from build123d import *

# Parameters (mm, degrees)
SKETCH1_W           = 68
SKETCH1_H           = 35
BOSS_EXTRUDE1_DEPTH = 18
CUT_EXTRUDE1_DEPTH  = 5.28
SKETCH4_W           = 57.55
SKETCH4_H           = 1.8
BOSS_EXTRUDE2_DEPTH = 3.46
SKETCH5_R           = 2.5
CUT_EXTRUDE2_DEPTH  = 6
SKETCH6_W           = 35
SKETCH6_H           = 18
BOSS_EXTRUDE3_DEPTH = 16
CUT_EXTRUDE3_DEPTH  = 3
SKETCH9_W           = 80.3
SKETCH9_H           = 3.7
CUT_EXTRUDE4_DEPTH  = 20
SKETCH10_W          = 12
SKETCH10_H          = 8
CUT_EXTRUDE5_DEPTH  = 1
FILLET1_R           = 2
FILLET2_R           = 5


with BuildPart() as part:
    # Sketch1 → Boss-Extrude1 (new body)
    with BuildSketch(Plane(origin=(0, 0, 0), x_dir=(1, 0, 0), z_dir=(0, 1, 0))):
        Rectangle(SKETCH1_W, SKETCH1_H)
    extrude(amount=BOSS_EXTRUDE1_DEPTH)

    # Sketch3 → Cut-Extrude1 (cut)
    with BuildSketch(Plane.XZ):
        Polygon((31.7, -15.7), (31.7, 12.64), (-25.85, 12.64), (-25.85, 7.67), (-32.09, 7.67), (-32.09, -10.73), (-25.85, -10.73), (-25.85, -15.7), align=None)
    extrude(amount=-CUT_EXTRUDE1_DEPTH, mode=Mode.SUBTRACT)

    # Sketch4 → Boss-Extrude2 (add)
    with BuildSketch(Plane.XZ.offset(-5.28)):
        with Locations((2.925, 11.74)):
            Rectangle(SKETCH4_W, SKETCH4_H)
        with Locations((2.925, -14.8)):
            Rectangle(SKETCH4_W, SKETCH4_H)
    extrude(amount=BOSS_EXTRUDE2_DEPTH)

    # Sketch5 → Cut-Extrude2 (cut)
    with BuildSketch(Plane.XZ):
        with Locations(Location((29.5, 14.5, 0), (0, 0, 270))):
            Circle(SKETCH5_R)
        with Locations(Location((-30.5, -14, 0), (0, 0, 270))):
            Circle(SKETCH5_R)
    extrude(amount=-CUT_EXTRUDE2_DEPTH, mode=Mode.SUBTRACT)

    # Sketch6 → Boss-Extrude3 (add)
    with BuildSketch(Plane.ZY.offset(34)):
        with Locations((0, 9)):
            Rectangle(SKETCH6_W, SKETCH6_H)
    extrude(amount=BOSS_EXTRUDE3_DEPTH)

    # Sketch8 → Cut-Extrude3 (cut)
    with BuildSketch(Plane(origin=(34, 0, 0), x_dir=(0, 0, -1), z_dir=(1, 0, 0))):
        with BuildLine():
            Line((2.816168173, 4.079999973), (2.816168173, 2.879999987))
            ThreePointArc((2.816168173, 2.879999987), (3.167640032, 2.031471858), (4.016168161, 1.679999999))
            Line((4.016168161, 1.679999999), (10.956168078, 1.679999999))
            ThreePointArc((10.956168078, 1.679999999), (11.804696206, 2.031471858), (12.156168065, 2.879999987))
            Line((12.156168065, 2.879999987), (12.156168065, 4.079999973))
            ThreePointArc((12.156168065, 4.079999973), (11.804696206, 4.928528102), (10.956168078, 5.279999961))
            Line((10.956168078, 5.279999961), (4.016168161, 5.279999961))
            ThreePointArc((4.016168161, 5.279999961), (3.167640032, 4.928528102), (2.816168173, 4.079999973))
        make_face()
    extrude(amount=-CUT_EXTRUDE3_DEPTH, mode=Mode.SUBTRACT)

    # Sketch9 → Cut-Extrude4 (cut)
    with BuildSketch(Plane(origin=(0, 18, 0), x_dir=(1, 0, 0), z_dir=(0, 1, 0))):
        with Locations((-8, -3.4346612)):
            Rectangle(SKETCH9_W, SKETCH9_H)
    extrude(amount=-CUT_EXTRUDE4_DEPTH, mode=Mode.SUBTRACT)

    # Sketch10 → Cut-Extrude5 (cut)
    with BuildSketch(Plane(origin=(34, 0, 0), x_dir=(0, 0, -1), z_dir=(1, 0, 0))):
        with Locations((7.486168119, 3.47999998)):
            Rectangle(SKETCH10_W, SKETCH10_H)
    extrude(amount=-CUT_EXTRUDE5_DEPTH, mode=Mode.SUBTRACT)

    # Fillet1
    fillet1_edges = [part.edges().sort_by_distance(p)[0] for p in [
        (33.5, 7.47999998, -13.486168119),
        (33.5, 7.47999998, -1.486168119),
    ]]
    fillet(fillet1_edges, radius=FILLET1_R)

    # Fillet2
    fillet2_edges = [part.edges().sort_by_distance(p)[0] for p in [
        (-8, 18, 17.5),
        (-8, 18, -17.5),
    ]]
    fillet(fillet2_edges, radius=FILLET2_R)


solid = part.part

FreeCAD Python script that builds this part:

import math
import FreeCAD as App
import Part
import Sketcher
from FreeCAD import Vector


def edges_at(feature, points):
    """Names of the edges that pass closest to the given points."""
    edges = feature.Shape.Edges
    near = lambda p: min(range(len(edges)), key=lambda i: edges[i].distToShape(Part.Vertex(*p))[0])
    return sorted({f"Edge{near(p) + 1}" for p in points})


def add_polygon(sketch, points):
    """Adds a closed chain of lines whose ends are joined by coincident constraints."""
    first, n = sketch.GeometryCount, len(points)
    for a, b in zip(points, points[1:] + points[:1]):
        sketch.addGeometry(Part.LineSegment(App.Vector(*a, 0), App.Vector(*b, 0)), False)
    for i in range(n):
        sketch.addConstraint(Sketcher.Constraint("Coincident", first + i, 2, first + (i + 1) % n, 1))

doc = App.newDocument("Part")
body = doc.addObject("PartDesign::Body", "Body")

# Sketch on XZ plane
sketch1 = doc.addObject("Sketcher::SketchObject", "Sketch")
body.addObject(sketch1)
sketch1.AttachmentSupport = (doc.XZ_Plane, [""])
sketch1.MapMode = "FlatFace"
add_polygon(sketch1, [(-34, -18), (-34, 18), (34, 18), (34, -18)])  # lines 0-3
sketch1.addConstraint(Sketcher.Constraint("Vertical", 0))
sketch1.addConstraint(Sketcher.Constraint("Horizontal", 1))
sketch1.addConstraint(Sketcher.Constraint("Vertical", 2))
sketch1.addConstraint(Sketcher.Constraint("Horizontal", 3))
sketch1.addConstraint(Sketcher.Constraint("Symmetric", 0, 2, 2, 2, -1, 1))
sketch1.addConstraint(Sketcher.Constraint("DistanceX", 1, 1, 1, 2, 68.0))
sketch1.addConstraint(Sketcher.Constraint("DistanceY", 0, 1, 0, 2, 35.0))
pad1 = doc.addObject("PartDesign::Pad", "Pad")
body.addObject(pad1)
pad1.Profile = sketch1
pad1.Length = 18
pad1.Reversed = True

# Sketch on XZ plane
sketch2 = doc.addObject("Sketcher::SketchObject", "Sketch001")
body.addObject(sketch2)
sketch2.AttachmentSupport = (doc.XZ_Plane, [""])
sketch2.MapMode = "FlatFace"
add_polygon(sketch2, [(31.7, -15.7), (31.7, 12.6), (-25.9, 12.6), (-25.9, 7.7), (-32.1, 7.7), (-32.1, -10.7), (-25.9, -10.7), (-25.9, -15.7)])  # lines 0-7
sketch2.addConstraint(Sketcher.Constraint("Vertical", 0))
sketch2.addConstraint(Sketcher.Constraint("Horizontal", 1))
sketch2.addConstraint(Sketcher.Constraint("Vertical", 2))
sketch2.addConstraint(Sketcher.Constraint("Horizontal", 3))
sketch2.addConstraint(Sketcher.Constraint("Vertical", 4))
sketch2.addConstraint(Sketcher.Constraint("Horizontal", 5))
sketch2.addConstraint(Sketcher.Constraint("Vertical", 6))
sketch2.addConstraint(Sketcher.Constraint("Horizontal", 7))
sketch2.addConstraint(Sketcher.Constraint("Vertical", 2, 2, 5, 2))
sketch2.addConstraint(Sketcher.Constraint("Equal", 2, 6))
sketch2.addConstraint(Sketcher.Constraint("DistanceY", 4, 2, 4, 1, 18.4))
sketch2.addConstraint(Sketcher.Constraint("DistanceX", 1, 2, 1, 1, 57.55))
sketch2.addConstraint(Sketcher.Constraint("DistanceX", 3, 2, 3, 1, 6.24))
sketch2.addConstraint(Sketcher.Constraint("DistanceY", 0, 1, 0, 2, 28.34))
sketch2.addConstraint(Sketcher.Constraint("DistanceX", -1, 1, 0, 2, 31.7))
sketch2.addConstraint(Sketcher.Constraint("DistanceY", 6, 2, -1, 1, 15.7))
pocket1 = doc.addObject("PartDesign::Pocket", "Pocket")
body.addObject(pocket1)
pocket1.Profile = sketch2
pocket1.Length = 5.28

# Sketch on XZ plane
sketch3 = doc.addObject("Sketcher::SketchObject", "Sketch002")
body.addObject(sketch3)
sketch3.AttachmentSupport = (doc.XZ_Plane, [""])
sketch3.MapMode = "FlatFace"
sketch3.AttachmentOffset = App.Placement(Vector(0, 0, -5.28), App.Rotation())
add_polygon(sketch3, [(-25.9, 12.6), (-25.9, 10.8), (31.7, 10.8), (31.7, 12.6)])  # lines 0-3
add_polygon(sketch3, [(-25.9, -13.9), (-25.9, -15.7), (31.7, -15.7), (31.7, -13.9)])  # lines 4-7
sketch3.addConstraint(Sketcher.Constraint("Vertical", 0))
sketch3.addConstraint(Sketcher.Constraint("Horizontal", 1))
sketch3.addConstraint(Sketcher.Constraint("Vertical", 2))
sketch3.addConstraint(Sketcher.Constraint("Horizontal", 3))
sketch3.addConstraint(Sketcher.Constraint("Vertical", 4))
sketch3.addConstraint(Sketcher.Constraint("Horizontal", 5))
sketch3.addConstraint(Sketcher.Constraint("Vertical", 6))
sketch3.addConstraint(Sketcher.Constraint("Horizontal", 7))
sketch3.addConstraint(Sketcher.Constraint("Vertical", 3, 2, 4, 2))
sketch3.addConstraint(Sketcher.Constraint("Vertical", 2, 2, 5, 2))
sketch3.addConstraint(Sketcher.Constraint("Equal", 2, 4))
sketch3.addConstraint(Sketcher.Constraint("DistanceY", 0, 2, 0, 1, 1.8))
sketch3.addConstraint(Sketcher.Constraint("DistanceX", 1, 1, 1, 2, 57.55))
sketch3.addConstraint(Sketcher.Constraint("DistanceX", -1, 1, 1, 2, 31.7))
sketch3.addConstraint(Sketcher.Constraint("DistanceY", 4, 2, -1, 1, 15.7))
sketch3.addConstraint(Sketcher.Constraint("DistanceY", -1, 1, 0, 2, 10.84))
pad2 = doc.addObject("PartDesign::Pad", "Pad001")
body.addObject(pad2)
pad2.Profile = sketch3
pad2.Length = 3.46

# Sketch on XZ plane
sketch4 = doc.addObject("Sketcher::SketchObject", "Sketch003")
body.addObject(sketch4)
sketch4.AttachmentSupport = (doc.XZ_Plane, [""])
sketch4.MapMode = "FlatFace"
sketch4.addGeometry(Part.Circle(Vector(29.5, 14.5, 0), Vector(0, 0, 1), 2.5), False)
sketch4.addGeometry(Part.Circle(Vector(-30.5, -14, 0), Vector(0, 0, 1), 2.5), False)
sketch4.addConstraint(Sketcher.Constraint("Equal", 0, 1))
sketch4.addConstraint(Sketcher.Constraint("Diameter", 0, 5.0))
sketch4.addConstraint(Sketcher.Constraint("DistanceY", 1, 3, -1, 1, 14.0))
sketch4.addConstraint(Sketcher.Constraint("DistanceX", 1, 3, 0, 3, 60.0))
sketch4.addConstraint(Sketcher.Constraint("DistanceX", -1, 1, 0, 3, 29.5))
sketch4.addConstraint(Sketcher.Constraint("DistanceY", -1, 1, 0, 3, 14.5))
pocket2 = doc.addObject("PartDesign::Pocket", "Pocket001")
body.addObject(pocket2)
pocket2.Profile = sketch4
pocket2.Length = 6

# Sketch on YZ plane
sketch5 = doc.addObject("Sketcher::SketchObject", "Sketch004")
body.addObject(sketch5)
sketch5.AttachmentSupport = (doc.YZ_Plane, [""])
sketch5.MapMode = "FlatFace"
sketch5.AttachmentOffset = App.Placement(Vector(0, 0, -34), App.Rotation())
add_polygon(sketch5, [(18, -18), (0, -18), (0, 18), (18, 18)])  # lines 0-3
sketch5.addConstraint(Sketcher.Constraint("Horizontal", 0))
sketch5.addConstraint(Sketcher.Constraint("Vertical", 1))
sketch5.addConstraint(Sketcher.Constraint("Horizontal", 2))
sketch5.addConstraint(Sketcher.Constraint("Vertical", 3))
sketch5.addConstraint(Sketcher.Constraint("Symmetric", 0, 2, 1, 2, -1, 1))
sketch5.addConstraint(Sketcher.Constraint("DistanceX", 0, 2, 0, 1, 18.0))
sketch5.addConstraint(Sketcher.Constraint("DistanceY", 1, 1, 1, 2, 35.0))
pad3 = doc.addObject("PartDesign::Pad", "Pad002")
body.addObject(pad3)
pad3.Profile = sketch5
pad3.Length = 16
pad3.Reversed = True

# Sketch on YZ plane
sketch6 = doc.addObject("Sketcher::SketchObject", "Sketch005")
body.addObject(sketch6)
sketch6.AttachmentSupport = (doc.YZ_Plane, [""])
sketch6.MapMode = "FlatFace"
sketch6.AttachmentOffset = App.Placement(Vector(0, 0, 34), App.Rotation())
sketch6.addGeometry(Part.LineSegment(Vector(4.1, -2.8, 0), Vector(2.9, -2.8, 0)), False)
sketch6.addGeometry(Part.ArcOfCircle(Part.Circle(Vector(2.9, -4, 0), Vector(0, 0, 1), 1.2), math.radians(90), math.radians(180)), False)
sketch6.addGeometry(Part.LineSegment(Vector(1.7, -4, 0), Vector(1.7, -11, 0)), False)
sketch6.addGeometry(Part.ArcOfCircle(Part.Circle(Vector(2.9, -11, 0), Vector(0, 0, 1), 1.2), math.radians(-180), math.radians(-90)), False)
sketch6.addGeometry(Part.LineSegment(Vector(2.9, -12.2, 0), Vector(4.1, -12.2, 0)), False)
sketch6.addGeometry(Part.ArcOfCircle(Part.Circle(Vector(4.1, -11, 0), Vector(0, 0, 1), 1.2), math.radians(-90), math.radians(0)), False)
sketch6.addGeometry(Part.LineSegment(Vector(5.3, -11, 0), Vector(5.3, -4, 0)), False)
sketch6.addGeometry(Part.ArcOfCircle(Part.Circle(Vector(4.1, -4, 0), Vector(0, 0, 1), 1.2), math.radians(0), math.radians(90)), False)
sketch6.addConstraint(Sketcher.Constraint("Tangent", 0, 2, 1, 1))
sketch6.addConstraint(Sketcher.Constraint("Tangent", 1, 2, 2, 1))
sketch6.addConstraint(Sketcher.Constraint("Tangent", 2, 2, 3, 1))
sketch6.addConstraint(Sketcher.Constraint("Tangent", 3, 2, 4, 1))
sketch6.addConstraint(Sketcher.Constraint("Tangent", 4, 2, 5, 1))
sketch6.addConstraint(Sketcher.Constraint("Tangent", 5, 2, 6, 1))
sketch6.addConstraint(Sketcher.Constraint("Tangent", 6, 2, 7, 1))
sketch6.addConstraint(Sketcher.Constraint("Tangent", 7, 2, 0, 1))
sketch6.addConstraint(Sketcher.Constraint("Horizontal", 0))
sketch6.addConstraint(Sketcher.Constraint("Vertical", 2))
sketch6.addConstraint(Sketcher.Constraint("Horizontal", 4))
sketch6.addConstraint(Sketcher.Constraint("Vertical", 6))
sketch6.addConstraint(Sketcher.Constraint("Equal", 1, 3))
sketch6.addConstraint(Sketcher.Constraint("Equal", 3, 5))
sketch6.addConstraint(Sketcher.Constraint("Equal", 5, 7))
sketch6.addConstraint(Sketcher.Constraint("Radius", 1, 1.2))
sketch6.addConstraint(Sketcher.Constraint("DistanceX", 0, 2, 0, 1, 1.2))
sketch6.addConstraint(Sketcher.Constraint("DistanceY", 2, 2, 2, 1, 6.94))
sketch6.addConstraint(Sketcher.Constraint("DistanceX", -1, 1, 1, 3, 2.88))
sketch6.addConstraint(Sketcher.Constraint("DistanceY", 1, 3, -1, 1, 4.016168))
pocket3 = doc.addObject("PartDesign::Pocket", "Pocket002")
body.addObject(pocket3)
pocket3.Profile = sketch6
pocket3.Length = 3

# Sketch on XZ plane
sketch7 = doc.addObject("Sketcher::SketchObject", "Sketch006")
body.addObject(sketch7)
sketch7.AttachmentSupport = (doc.XZ_Plane, [""])
sketch7.MapMode = "FlatFace"
sketch7.AttachmentOffset = App.Placement(Vector(0, 0, -18), App.Rotation())
add_polygon(sketch7, [(-48.1, 1.6), (-48.1, 5.3), (32.1, 5.3), (32.1, 1.6)])  # lines 0-3
sketch7.addConstraint(Sketcher.Constraint("Vertical", 0))
sketch7.addConstraint(Sketcher.Constraint("Horizontal", 1))
sketch7.addConstraint(Sketcher.Constraint("Vertical", 2))
sketch7.addConstraint(Sketcher.Constraint("Horizontal", 3))
sketch7.addConstraint(Sketcher.Constraint("DistanceX", 1, 1, 1, 2, 80.3))
sketch7.addConstraint(Sketcher.Constraint("DistanceY", 0, 1, 0, 2, 3.7))
sketch7.addConstraint(Sketcher.Constraint("DistanceX", 0, 2, -1, 1, 48.15))
sketch7.addConstraint(Sketcher.Constraint("DistanceY", -1, 1, 0, 2, 5.284661))
pocket4 = doc.addObject("PartDesign::Pocket", "Pocket003")
body.addObject(pocket4)
pocket4.Profile = sketch7
pocket4.Length = 20
pocket4.Reversed = True

# Sketch on YZ plane
sketch8 = doc.addObject("Sketcher::SketchObject", "Sketch007")
body.addObject(sketch8)
sketch8.AttachmentSupport = (doc.YZ_Plane, [""])
sketch8.MapMode = "FlatFace"
sketch8.AttachmentOffset = App.Placement(Vector(0, 0, 34), App.Rotation())
add_polygon(sketch8, [(7, -1), (-1, -1), (-1, -13), (7, -13)])  # lines 0-3
sketch8.addConstraint(Sketcher.Constraint("Horizontal", 0))
sketch8.addConstraint(Sketcher.Constraint("Vertical", 1))
sketch8.addConstraint(Sketcher.Constraint("Horizontal", 2))
sketch8.addConstraint(Sketcher.Constraint("Vertical", 3))
sketch8.addConstraint(Sketcher.Constraint("DistanceX", 0, 2, 0, 1, 8.0))
sketch8.addConstraint(Sketcher.Constraint("DistanceY", 1, 2, 1, 1, 12.0))
sketch8.addConstraint(Sketcher.Constraint("DistanceX", 0, 2, -1, 1, 0.52))
sketch8.addConstraint(Sketcher.Constraint("DistanceY", 0, 2, -1, 1, 1.486168))
pocket5 = doc.addObject("PartDesign::Pocket", "Pocket004")
body.addObject(pocket5)
pocket5.Profile = sketch8
pocket5.Length = 1
doc.recompute()

fillet = doc.addObject("PartDesign::Fillet", "Fillet")
body.addObject(fillet)
fillet.Base = (pocket5, edges_at(pocket5, [(33.5, 7.48, -13.486), (33.5, 7.48, -1.486)]))
fillet.Radius = 2
doc.recompute()

fillet2 = doc.addObject("PartDesign::Fillet", "Fillet001")
body.addObject(fillet2)
fillet2.Base = (fillet, edges_at(fillet, [(-8, 18, 17.5), (-8, 18, -17.5)]))
fillet2.Radius = 5

doc.recompute()
